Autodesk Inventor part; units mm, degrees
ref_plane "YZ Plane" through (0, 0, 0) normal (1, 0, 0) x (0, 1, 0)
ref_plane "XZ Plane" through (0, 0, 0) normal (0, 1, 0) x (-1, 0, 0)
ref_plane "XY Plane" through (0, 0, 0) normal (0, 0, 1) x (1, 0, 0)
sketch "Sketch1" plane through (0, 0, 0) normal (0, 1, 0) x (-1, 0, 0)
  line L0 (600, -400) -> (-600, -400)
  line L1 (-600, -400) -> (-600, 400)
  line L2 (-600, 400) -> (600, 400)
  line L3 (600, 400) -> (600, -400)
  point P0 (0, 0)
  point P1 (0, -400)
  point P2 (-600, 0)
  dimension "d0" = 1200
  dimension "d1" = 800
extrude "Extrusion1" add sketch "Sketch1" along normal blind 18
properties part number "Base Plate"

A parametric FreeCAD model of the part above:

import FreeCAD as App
import Part
import Sketcher

V = App.Vector
Q = App.Units.Quantity

doc = App.newDocument("Part")
body = doc.addObject("PartDesign::Body", "Body")

sketch1 = body.newObject("Sketcher::SketchObject", "Sketch")
sketch1.AttachmentSupport = (doc.getObject("XZ_Plane"), [""])
sketch1.MapMode = "FlatFace"
sketch1.addGeometry([
    Part.LineSegment(V(600, -400, 0), V(-600, -400, 0)),
    Part.LineSegment(V(-600, -400, 0), V(-600, 400, 0)),
    Part.LineSegment(V(-600, 400, 0), V(600, 400, 0)),
    Part.LineSegment(V(600, 400, 0), V(600, -400, 0)),
], False)
sketch1.addConstraint([
    Sketcher.Constraint("Coincident", 0, 2, 1, 1),
    Sketcher.Constraint("Coincident", 1, 2, 2, 1),
    Sketcher.Constraint("Coincident", 2, 2, 3, 1),
    Sketcher.Constraint("Coincident", 3, 2, 0, 1),
    Sketcher.Constraint("Horizontal", 0),
    Sketcher.Constraint("Vertical", 1),
    Sketcher.Constraint("Horizontal", 2),
    Sketcher.Constraint("Vertical", 3),
    Sketcher.Constraint("Symmetric", 0, 2, 2, 2, -1, 1),
    Sketcher.Constraint("DistanceX", 0, 2, 0, 1, Q("1200 mm")),
    Sketcher.Constraint("DistanceY", 1, 1, 1, 2, Q("800 mm")),
])
pad1 = body.newObject("PartDesign::Pad", "Pad")
pad1.Profile = sketch1
pad1.Length = 18
pad1.Reversed = True

doc.recompute()
